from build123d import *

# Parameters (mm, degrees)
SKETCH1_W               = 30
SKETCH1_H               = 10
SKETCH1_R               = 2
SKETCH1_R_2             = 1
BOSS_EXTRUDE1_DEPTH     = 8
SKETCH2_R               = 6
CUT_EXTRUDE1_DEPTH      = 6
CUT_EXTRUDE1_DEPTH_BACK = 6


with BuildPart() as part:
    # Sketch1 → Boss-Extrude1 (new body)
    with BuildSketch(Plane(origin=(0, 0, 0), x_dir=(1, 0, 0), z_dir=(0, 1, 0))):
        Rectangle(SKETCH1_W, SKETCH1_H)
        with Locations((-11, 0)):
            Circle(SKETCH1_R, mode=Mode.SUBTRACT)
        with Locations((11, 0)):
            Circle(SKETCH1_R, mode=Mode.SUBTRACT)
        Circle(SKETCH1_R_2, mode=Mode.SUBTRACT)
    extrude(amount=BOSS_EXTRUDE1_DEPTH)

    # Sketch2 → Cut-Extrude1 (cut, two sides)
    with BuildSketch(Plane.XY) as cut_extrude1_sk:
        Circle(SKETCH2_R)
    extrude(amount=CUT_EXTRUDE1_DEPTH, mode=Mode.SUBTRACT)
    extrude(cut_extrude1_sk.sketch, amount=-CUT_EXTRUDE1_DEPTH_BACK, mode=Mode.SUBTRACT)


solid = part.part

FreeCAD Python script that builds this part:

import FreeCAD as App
import Part
import Sketcher
from FreeCAD import Vector

doc = App.newDocument("Part")
params = doc.addObject("Spreadsheet::Sheet", "Params")
for row, (alias, value) in enumerate([
    ("sketch1_diameter", "4 mm"),
    ("sketch1_diameter2", "2 mm"),
    ("sketch1_width", "30 mm"),
    ("sketch1_height", "10 mm"),
    ("pad1_length", "8 mm"),
    ("sketch2_diameter", "12 mm"),
], start=1):
    params.set(f"A{row}", alias)
    params.set(f"B{row}", "=" + value)
    params.setAlias(f"B{row}", alias)

body = doc.addObject("PartDesign::Body", "Body")

sketch1 = body.newObject("Sketcher::SketchObject", "Sketch")
sketch1.AttachmentSupport = (doc.getObject("XZ_Plane"), [""])
sketch1.MapMode = "FlatFace"
sketch1.addGeometry([
    Part.LineSegment(Vector(-15, -5, 0), Vector(-15, 5, 0)),
    Part.LineSegment(Vector(-15, 5, 0), Vector(15, 5, 0)),
    Part.LineSegment(Vector(15, 5, 0), Vector(15, -5, 0)),
    Part.LineSegment(Vector(15, -5, 0), Vector(-15, -5, 0)),
    Part.Circle(Vector(-11, 0, 0), Vector(0, 0, 1), 2),
    Part.Circle(Vector(0, 0, 0), Vector(0, 0, 1), 1),
    Part.Circle(Vector(11, 0, 0), Vector(0, 0, 1), 2),
], False)
sketch1.addConstraint([
    Sketcher.Constraint("Coincident", 0, 2, 1, 1),
    Sketcher.Constraint("Coincident", 1, 2, 2, 1),
    Sketcher.Constraint("Coincident", 2, 2, 3, 1),
    Sketcher.Constraint("Coincident", 3, 2, 0, 1),
    Sketcher.Constraint("Vertical", 0),
    Sketcher.Constraint("Horizontal", 1),
    Sketcher.Constraint("Vertical", 2),
    Sketcher.Constraint("Horizontal", 3),
    Sketcher.Constraint("Coincident", 5, 3, -1, 1),
    Sketcher.Constraint("Equal", 4, 6),
    Sketcher.Constraint("Symmetric", 4, 3, 6, 3, -1, 1),
    Sketcher.Constraint("Symmetric", 0, 2, 2, 2, -1, 1),
    Sketcher.Constraint("PointOnObject", 4, 3, -1),
    Sketcher.Constraint("Diameter", 4, 4.0),
    Sketcher.Constraint("Diameter", 5, 2.0),
    Sketcher.Constraint("DistanceX", 1, 1, 1, 2, 30.0),
    Sketcher.Constraint("DistanceY", 0, 1, 0, 2, 10.0),
    Sketcher.Constraint("DistanceX", 4, 3, -1, 1, 11.0),
])
sketch1.setExpression("Constraints[13]", "Params.sketch1_diameter")
sketch1.setExpression("Constraints[14]", "Params.sketch1_diameter2")
sketch1.setExpression("Constraints[15]", "Params.sketch1_width")
sketch1.setExpression("Constraints[16]", "Params.sketch1_height")
pad1 = body.newObject("PartDesign::Pad", "Pad")
pad1.Profile = sketch1
pad1.setExpression("Length", "Params.pad1_length")
pad1.Reversed = True

sketch2 = body.newObject("Sketcher::SketchObject", "Sketch001")
sketch2.AttachmentSupport = (doc.getObject("XY_Plane"), [""])
sketch2.MapMode = "FlatFace"
sketch2.addGeometry(Part.Circle(Vector(0, 0, 0), Vector(0, 0, 1), 6), False)
sketch2.addConstraint([
    Sketcher.Constraint("Coincident", 0, 3, -1, 1),
    Sketcher.Constraint("Diameter", 0, 12.0),
])
sketch2.setExpression("Constraints[1]", "Params.sketch2_diameter")
pocket1 = body.newObject("PartDesign::Pocket", "Pocket")
pocket1.Profile = sketch2
pocket1.Type = "ThroughAll"
pocket1.Midplane = True

doc.recompute()
